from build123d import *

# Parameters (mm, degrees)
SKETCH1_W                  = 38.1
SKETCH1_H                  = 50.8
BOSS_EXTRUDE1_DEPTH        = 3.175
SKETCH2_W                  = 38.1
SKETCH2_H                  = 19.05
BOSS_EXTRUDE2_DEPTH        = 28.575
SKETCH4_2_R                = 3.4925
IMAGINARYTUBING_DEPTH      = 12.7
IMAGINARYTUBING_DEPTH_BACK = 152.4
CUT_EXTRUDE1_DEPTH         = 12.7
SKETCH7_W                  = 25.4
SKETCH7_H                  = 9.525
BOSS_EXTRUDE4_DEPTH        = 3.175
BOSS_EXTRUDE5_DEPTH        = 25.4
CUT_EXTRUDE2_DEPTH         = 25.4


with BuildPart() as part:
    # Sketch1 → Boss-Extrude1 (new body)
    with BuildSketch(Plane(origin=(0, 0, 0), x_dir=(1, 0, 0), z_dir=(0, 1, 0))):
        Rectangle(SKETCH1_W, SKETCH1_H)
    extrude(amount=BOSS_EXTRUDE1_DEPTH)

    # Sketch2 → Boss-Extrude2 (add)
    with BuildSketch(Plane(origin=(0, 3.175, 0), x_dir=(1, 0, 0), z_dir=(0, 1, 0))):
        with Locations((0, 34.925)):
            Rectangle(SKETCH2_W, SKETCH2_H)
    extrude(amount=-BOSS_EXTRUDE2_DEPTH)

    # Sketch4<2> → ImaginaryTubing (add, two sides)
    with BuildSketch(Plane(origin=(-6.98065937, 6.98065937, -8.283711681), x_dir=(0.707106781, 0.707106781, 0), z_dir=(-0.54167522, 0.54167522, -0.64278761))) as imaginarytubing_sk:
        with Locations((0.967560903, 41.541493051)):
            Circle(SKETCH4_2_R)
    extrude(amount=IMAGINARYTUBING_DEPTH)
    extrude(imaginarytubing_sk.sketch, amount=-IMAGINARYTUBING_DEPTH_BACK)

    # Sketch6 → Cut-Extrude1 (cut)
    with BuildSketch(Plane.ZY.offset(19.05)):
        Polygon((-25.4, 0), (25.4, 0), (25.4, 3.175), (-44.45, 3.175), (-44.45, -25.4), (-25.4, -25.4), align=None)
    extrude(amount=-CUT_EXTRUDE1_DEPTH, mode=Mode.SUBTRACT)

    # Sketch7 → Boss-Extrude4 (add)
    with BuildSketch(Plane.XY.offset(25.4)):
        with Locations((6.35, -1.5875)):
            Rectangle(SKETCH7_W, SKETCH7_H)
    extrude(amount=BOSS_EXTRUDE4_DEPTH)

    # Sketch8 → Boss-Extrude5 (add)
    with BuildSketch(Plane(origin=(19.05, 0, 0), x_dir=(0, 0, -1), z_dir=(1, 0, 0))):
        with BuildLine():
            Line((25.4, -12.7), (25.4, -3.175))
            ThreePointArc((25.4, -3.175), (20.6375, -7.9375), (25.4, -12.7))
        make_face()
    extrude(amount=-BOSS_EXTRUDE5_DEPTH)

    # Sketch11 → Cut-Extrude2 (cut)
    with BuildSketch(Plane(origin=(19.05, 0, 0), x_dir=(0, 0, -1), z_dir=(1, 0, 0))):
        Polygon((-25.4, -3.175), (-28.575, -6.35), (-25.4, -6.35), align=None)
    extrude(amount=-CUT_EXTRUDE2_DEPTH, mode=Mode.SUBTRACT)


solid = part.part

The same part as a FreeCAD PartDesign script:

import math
import FreeCAD as App
import Part
import Sketcher
from FreeCAD import Vector
Q = App.Units.Quantity


def add_polygon(sketch, points):
    """Adds a closed chain of lines whose ends are joined by coincident constraints."""
    first, n = sketch.GeometryCount, len(points)
    for a, b in zip(points, points[1:] + points[:1]):
        sketch.addGeometry(Part.LineSegment(App.Vector(*a, 0), App.Vector(*b, 0)), False)
    for i in range(n):
        sketch.addConstraint(Sketcher.Constraint("Coincident", first + i, 2, first + (i + 1) % n, 1))

doc = App.newDocument("Part")
body = doc.addObject("PartDesign::Body", "Body")

sketch1 = body.newObject("Sketcher::SketchObject", "Sketch")
sketch1.AttachmentSupport = (doc.getObject("XZ_Plane"), [""])
sketch1.MapMode = "FlatFace"
add_polygon(sketch1, [(-19, -25), (-19, 25), (19, 25), (19, -25)])
sketch1.addConstraint([
    Sketcher.Constraint("Vertical", 0),
    Sketcher.Constraint("Horizontal", 1),
    Sketcher.Constraint("Vertical", 2),
    Sketcher.Constraint("Horizontal", 3),
    Sketcher.Constraint("Symmetric", 0, 2, 2, 2, -1, 1),
    Sketcher.Constraint("DistanceY", 0, 1, 0, 2, Q("2 in")),
    Sketcher.Constraint("DistanceX", 1, 1, 1, 2, Q("1.5 in")),
])
pad1 = body.newObject("PartDesign::Pad", "Pad")
pad1.Profile = sketch1
pad1.Length = Q("0.125 in")
pad1.Reversed = True

sketch2 = body.newObject("Sketcher::SketchObject", "Sketch001")
sketch2.AttachmentSupport = (doc.getObject("XZ_Plane"), [""])
sketch2.MapMode = "FlatFace"
sketch2.AttachmentOffset = App.Placement(Vector(0, 0, -0.125 * 25.4), App.Rotation())
add_polygon(sketch2, [(-19, -44), (-19, -25), (19, -25), (19, -44)])
sketch2.addConstraint([
    Sketcher.Constraint("Vertical", 0),
    Sketcher.Constraint("Horizontal", 1),
    Sketcher.Constraint("Vertical", 2),
    Sketcher.Constraint("Horizontal", 3),
    Sketcher.Constraint("DistanceX", 1, 1, 1, 2, Q("1.5 in")),
    Sketcher.Constraint("DistanceY", 0, 2, -1, 1, Q("1 in")),
    Sketcher.Constraint("DistanceY", 0, 1, 0, 2, Q("0.75 in")),
    Sketcher.Constraint("DistanceX", 0, 2, -1, 1, Q("0.75 in")),
])
pad2 = body.newObject("PartDesign::Pad", "Pad001")
pad2.Profile = sketch2
pad2.Length = Q("1.125 in")

sketch3 = body.newObject("Sketcher::SketchObject", "Sketch002")
sketch3.Placement = App.Placement(Vector(-6.980659, 6.980659, -8.283712), App.Rotation(Vector(0.707106781, 0.707106781, 0), Vector(0.454519478, -0.454519478, -0.766044442), Vector(-0.54167522, 0.54167522, -0.64278761), "ZXY"))
sketch3.addGeometry(Part.Circle(Vector(1, 41.5, 0), Vector(0, 0, 1), 3.5), False)
sketch3.addConstraint([
    Sketcher.Constraint("Diameter", 0, Q("0.275 in")),
    Sketcher.Constraint("DistanceX", -1, 1, 0, 3, 0.967561),
    Sketcher.Constraint("DistanceY", -1, 1, 0, 3, 41.541493),
])
pad3 = body.newObject("PartDesign::Pad", "Pad002")
pad3.Profile = sketch3
pad3.Type = "TwoLengths"
pad3.Length = Q("0.5 in")
pad3.Length2 = Q("6 in")

sketch4 = body.newObject("Sketcher::SketchObject", "Sketch003")
sketch4.AttachmentSupport = (doc.getObject("YZ_Plane"), [""])
sketch4.MapMode = "FlatFace"
sketch4.AttachmentOffset = App.Placement(Vector(0, 0, -0.75 * 25.4), App.Rotation())
add_polygon(sketch4, [(0, -25.4), (0, 25.4), (3.2, 25.4), (3.2, -44.5), (-25.4, -44.5), (-25.4, -25.4)])
sketch4.addConstraint([
    Sketcher.Constraint("Vertical", 0),
    Sketcher.Constraint("Horizontal", 1),
    Sketcher.Constraint("Vertical", 2),
    Sketcher.Constraint("Horizontal", 3),
    Sketcher.Constraint("Vertical", 4),
    Sketcher.Constraint("Horizontal", 5),
    Sketcher.Constraint("Symmetric", 0, 2, 5, 2, -1, 1),
    Sketcher.Constraint("DistanceX", 5, 1, 5, 2, Q("1 in")),
    Sketcher.Constraint("DistanceY", 0, 1, 0, 2, Q("2 in")),
    Sketcher.Constraint("DistanceY", 2, 2, 2, 1, Q("2.75 in")),
    Sketcher.Constraint("DistanceX", 1, 1, 1, 2, Q("0.125 in")),
])
pocket1 = body.newObject("PartDesign::Pocket", "Pocket")
pocket1.Profile = sketch4
pocket1.Length = Q("0.5 in")
pocket1.Reversed = True

sketch5 = body.newObject("Sketcher::SketchObject", "Sketch004")
sketch5.AttachmentSupport = (doc.getObject("XY_Plane"), [""])
sketch5.MapMode = "FlatFace"
sketch5.AttachmentOffset = App.Placement(Vector(0, 0, 1 * 25.4), App.Rotation())
add_polygon(sketch5, [(-6, 3), (-6, -6), (19, -6), (19, 3)])
sketch5.addConstraint([
    Sketcher.Constraint("Vertical", 0),
    Sketcher.Constraint("Horizontal", 1),
    Sketcher.Constraint("Vertical", 2),
    Sketcher.Constraint("Horizontal", 3),
    Sketcher.Constraint("DistanceX", 1, 1, 1, 2, Q("1 in")),
    Sketcher.Constraint("DistanceY", 0, 2, 0, 1, Q("0.375 in")),
    Sketcher.Constraint("DistanceX", 0, 2, -1, 1, Q("0.25 in")),
    Sketcher.Constraint("DistanceY", 0, 2, -1, 1, Q("0.25 in")),
])
pad4 = body.newObject("PartDesign::Pad", "Pad003")
pad4.Profile = sketch5
pad4.Length = Q("0.125 in")

sketch6 = body.newObject("Sketcher::SketchObject", "Sketch005")
sketch6.AttachmentSupport = (doc.getObject("YZ_Plane"), [""])
sketch6.MapMode = "FlatFace"
sketch6.AttachmentOffset = App.Placement(Vector(0, 0, 0.75 * 25.4), App.Rotation())
sketch6.addGeometry([
    Part.LineSegment(Vector(-12.7, -25.4, 0), Vector(-3.2, -25.4, 0)),
    Part.ArcOfCircle(Part.Circle(Vector(-7.9, -25.4, 0), Vector(0, 0, 1), 4.8), math.radians(0), math.radians(180)),
], False)
sketch6.addConstraint([
    Sketcher.Constraint("Coincident", 0, 1, 1, 2),
    Sketcher.Constraint("Coincident", 1, 1, 0, 2),
    Sketcher.Constraint("Horizontal", 0),
    Sketcher.Constraint("Horizontal", 1, 3, 0, 1),
    Sketcher.Constraint("DistanceY", 1, 3, -1, 1, Q("1 in")),
    Sketcher.Constraint("Radius", 1, Q("0.1875 in")),
    Sketcher.Constraint("DistanceX", 0, 1, -1, 1, Q("0.5 in")),
])
pad5 = body.newObject("PartDesign::Pad", "Pad004")
pad5.Profile = sketch6
pad5.Length = Q("1 in")
pad5.Reversed = True

sketch7 = body.newObject("Sketcher::SketchObject", "Sketch006")
sketch7.AttachmentSupport = (doc.getObject("YZ_Plane"), [""])
sketch7.MapMode = "FlatFace"
sketch7.AttachmentOffset = App.Placement(Vector(0, 0, 0.75 * 25.4), App.Rotation())
add_polygon(sketch7, [(-3.2, 25.4), (-6.3, 28.6), (-6.3, 25.4)])
sketch7.addConstraint([
    Sketcher.Constraint("Vertical", 1),
    Sketcher.Constraint("Horizontal", 2),
    Sketcher.Constraint("Equal", 2, 1),
    Sketcher.Constraint("DistanceY", -1, 1, 1, 2, Q("1 in")),
    Sketcher.Constraint("DistanceX", 2, 1, 2, 2, Q("0.125 in")),
    Sketcher.Constraint("DistanceX", 0, 2, -1, 1, Q("0.25 in")),
])
pocket2 = body.newObject("PartDesign::Pocket", "Pocket001")
pocket2.Profile = sketch7
pocket2.Length = Q("1 in")

doc.recompute()
